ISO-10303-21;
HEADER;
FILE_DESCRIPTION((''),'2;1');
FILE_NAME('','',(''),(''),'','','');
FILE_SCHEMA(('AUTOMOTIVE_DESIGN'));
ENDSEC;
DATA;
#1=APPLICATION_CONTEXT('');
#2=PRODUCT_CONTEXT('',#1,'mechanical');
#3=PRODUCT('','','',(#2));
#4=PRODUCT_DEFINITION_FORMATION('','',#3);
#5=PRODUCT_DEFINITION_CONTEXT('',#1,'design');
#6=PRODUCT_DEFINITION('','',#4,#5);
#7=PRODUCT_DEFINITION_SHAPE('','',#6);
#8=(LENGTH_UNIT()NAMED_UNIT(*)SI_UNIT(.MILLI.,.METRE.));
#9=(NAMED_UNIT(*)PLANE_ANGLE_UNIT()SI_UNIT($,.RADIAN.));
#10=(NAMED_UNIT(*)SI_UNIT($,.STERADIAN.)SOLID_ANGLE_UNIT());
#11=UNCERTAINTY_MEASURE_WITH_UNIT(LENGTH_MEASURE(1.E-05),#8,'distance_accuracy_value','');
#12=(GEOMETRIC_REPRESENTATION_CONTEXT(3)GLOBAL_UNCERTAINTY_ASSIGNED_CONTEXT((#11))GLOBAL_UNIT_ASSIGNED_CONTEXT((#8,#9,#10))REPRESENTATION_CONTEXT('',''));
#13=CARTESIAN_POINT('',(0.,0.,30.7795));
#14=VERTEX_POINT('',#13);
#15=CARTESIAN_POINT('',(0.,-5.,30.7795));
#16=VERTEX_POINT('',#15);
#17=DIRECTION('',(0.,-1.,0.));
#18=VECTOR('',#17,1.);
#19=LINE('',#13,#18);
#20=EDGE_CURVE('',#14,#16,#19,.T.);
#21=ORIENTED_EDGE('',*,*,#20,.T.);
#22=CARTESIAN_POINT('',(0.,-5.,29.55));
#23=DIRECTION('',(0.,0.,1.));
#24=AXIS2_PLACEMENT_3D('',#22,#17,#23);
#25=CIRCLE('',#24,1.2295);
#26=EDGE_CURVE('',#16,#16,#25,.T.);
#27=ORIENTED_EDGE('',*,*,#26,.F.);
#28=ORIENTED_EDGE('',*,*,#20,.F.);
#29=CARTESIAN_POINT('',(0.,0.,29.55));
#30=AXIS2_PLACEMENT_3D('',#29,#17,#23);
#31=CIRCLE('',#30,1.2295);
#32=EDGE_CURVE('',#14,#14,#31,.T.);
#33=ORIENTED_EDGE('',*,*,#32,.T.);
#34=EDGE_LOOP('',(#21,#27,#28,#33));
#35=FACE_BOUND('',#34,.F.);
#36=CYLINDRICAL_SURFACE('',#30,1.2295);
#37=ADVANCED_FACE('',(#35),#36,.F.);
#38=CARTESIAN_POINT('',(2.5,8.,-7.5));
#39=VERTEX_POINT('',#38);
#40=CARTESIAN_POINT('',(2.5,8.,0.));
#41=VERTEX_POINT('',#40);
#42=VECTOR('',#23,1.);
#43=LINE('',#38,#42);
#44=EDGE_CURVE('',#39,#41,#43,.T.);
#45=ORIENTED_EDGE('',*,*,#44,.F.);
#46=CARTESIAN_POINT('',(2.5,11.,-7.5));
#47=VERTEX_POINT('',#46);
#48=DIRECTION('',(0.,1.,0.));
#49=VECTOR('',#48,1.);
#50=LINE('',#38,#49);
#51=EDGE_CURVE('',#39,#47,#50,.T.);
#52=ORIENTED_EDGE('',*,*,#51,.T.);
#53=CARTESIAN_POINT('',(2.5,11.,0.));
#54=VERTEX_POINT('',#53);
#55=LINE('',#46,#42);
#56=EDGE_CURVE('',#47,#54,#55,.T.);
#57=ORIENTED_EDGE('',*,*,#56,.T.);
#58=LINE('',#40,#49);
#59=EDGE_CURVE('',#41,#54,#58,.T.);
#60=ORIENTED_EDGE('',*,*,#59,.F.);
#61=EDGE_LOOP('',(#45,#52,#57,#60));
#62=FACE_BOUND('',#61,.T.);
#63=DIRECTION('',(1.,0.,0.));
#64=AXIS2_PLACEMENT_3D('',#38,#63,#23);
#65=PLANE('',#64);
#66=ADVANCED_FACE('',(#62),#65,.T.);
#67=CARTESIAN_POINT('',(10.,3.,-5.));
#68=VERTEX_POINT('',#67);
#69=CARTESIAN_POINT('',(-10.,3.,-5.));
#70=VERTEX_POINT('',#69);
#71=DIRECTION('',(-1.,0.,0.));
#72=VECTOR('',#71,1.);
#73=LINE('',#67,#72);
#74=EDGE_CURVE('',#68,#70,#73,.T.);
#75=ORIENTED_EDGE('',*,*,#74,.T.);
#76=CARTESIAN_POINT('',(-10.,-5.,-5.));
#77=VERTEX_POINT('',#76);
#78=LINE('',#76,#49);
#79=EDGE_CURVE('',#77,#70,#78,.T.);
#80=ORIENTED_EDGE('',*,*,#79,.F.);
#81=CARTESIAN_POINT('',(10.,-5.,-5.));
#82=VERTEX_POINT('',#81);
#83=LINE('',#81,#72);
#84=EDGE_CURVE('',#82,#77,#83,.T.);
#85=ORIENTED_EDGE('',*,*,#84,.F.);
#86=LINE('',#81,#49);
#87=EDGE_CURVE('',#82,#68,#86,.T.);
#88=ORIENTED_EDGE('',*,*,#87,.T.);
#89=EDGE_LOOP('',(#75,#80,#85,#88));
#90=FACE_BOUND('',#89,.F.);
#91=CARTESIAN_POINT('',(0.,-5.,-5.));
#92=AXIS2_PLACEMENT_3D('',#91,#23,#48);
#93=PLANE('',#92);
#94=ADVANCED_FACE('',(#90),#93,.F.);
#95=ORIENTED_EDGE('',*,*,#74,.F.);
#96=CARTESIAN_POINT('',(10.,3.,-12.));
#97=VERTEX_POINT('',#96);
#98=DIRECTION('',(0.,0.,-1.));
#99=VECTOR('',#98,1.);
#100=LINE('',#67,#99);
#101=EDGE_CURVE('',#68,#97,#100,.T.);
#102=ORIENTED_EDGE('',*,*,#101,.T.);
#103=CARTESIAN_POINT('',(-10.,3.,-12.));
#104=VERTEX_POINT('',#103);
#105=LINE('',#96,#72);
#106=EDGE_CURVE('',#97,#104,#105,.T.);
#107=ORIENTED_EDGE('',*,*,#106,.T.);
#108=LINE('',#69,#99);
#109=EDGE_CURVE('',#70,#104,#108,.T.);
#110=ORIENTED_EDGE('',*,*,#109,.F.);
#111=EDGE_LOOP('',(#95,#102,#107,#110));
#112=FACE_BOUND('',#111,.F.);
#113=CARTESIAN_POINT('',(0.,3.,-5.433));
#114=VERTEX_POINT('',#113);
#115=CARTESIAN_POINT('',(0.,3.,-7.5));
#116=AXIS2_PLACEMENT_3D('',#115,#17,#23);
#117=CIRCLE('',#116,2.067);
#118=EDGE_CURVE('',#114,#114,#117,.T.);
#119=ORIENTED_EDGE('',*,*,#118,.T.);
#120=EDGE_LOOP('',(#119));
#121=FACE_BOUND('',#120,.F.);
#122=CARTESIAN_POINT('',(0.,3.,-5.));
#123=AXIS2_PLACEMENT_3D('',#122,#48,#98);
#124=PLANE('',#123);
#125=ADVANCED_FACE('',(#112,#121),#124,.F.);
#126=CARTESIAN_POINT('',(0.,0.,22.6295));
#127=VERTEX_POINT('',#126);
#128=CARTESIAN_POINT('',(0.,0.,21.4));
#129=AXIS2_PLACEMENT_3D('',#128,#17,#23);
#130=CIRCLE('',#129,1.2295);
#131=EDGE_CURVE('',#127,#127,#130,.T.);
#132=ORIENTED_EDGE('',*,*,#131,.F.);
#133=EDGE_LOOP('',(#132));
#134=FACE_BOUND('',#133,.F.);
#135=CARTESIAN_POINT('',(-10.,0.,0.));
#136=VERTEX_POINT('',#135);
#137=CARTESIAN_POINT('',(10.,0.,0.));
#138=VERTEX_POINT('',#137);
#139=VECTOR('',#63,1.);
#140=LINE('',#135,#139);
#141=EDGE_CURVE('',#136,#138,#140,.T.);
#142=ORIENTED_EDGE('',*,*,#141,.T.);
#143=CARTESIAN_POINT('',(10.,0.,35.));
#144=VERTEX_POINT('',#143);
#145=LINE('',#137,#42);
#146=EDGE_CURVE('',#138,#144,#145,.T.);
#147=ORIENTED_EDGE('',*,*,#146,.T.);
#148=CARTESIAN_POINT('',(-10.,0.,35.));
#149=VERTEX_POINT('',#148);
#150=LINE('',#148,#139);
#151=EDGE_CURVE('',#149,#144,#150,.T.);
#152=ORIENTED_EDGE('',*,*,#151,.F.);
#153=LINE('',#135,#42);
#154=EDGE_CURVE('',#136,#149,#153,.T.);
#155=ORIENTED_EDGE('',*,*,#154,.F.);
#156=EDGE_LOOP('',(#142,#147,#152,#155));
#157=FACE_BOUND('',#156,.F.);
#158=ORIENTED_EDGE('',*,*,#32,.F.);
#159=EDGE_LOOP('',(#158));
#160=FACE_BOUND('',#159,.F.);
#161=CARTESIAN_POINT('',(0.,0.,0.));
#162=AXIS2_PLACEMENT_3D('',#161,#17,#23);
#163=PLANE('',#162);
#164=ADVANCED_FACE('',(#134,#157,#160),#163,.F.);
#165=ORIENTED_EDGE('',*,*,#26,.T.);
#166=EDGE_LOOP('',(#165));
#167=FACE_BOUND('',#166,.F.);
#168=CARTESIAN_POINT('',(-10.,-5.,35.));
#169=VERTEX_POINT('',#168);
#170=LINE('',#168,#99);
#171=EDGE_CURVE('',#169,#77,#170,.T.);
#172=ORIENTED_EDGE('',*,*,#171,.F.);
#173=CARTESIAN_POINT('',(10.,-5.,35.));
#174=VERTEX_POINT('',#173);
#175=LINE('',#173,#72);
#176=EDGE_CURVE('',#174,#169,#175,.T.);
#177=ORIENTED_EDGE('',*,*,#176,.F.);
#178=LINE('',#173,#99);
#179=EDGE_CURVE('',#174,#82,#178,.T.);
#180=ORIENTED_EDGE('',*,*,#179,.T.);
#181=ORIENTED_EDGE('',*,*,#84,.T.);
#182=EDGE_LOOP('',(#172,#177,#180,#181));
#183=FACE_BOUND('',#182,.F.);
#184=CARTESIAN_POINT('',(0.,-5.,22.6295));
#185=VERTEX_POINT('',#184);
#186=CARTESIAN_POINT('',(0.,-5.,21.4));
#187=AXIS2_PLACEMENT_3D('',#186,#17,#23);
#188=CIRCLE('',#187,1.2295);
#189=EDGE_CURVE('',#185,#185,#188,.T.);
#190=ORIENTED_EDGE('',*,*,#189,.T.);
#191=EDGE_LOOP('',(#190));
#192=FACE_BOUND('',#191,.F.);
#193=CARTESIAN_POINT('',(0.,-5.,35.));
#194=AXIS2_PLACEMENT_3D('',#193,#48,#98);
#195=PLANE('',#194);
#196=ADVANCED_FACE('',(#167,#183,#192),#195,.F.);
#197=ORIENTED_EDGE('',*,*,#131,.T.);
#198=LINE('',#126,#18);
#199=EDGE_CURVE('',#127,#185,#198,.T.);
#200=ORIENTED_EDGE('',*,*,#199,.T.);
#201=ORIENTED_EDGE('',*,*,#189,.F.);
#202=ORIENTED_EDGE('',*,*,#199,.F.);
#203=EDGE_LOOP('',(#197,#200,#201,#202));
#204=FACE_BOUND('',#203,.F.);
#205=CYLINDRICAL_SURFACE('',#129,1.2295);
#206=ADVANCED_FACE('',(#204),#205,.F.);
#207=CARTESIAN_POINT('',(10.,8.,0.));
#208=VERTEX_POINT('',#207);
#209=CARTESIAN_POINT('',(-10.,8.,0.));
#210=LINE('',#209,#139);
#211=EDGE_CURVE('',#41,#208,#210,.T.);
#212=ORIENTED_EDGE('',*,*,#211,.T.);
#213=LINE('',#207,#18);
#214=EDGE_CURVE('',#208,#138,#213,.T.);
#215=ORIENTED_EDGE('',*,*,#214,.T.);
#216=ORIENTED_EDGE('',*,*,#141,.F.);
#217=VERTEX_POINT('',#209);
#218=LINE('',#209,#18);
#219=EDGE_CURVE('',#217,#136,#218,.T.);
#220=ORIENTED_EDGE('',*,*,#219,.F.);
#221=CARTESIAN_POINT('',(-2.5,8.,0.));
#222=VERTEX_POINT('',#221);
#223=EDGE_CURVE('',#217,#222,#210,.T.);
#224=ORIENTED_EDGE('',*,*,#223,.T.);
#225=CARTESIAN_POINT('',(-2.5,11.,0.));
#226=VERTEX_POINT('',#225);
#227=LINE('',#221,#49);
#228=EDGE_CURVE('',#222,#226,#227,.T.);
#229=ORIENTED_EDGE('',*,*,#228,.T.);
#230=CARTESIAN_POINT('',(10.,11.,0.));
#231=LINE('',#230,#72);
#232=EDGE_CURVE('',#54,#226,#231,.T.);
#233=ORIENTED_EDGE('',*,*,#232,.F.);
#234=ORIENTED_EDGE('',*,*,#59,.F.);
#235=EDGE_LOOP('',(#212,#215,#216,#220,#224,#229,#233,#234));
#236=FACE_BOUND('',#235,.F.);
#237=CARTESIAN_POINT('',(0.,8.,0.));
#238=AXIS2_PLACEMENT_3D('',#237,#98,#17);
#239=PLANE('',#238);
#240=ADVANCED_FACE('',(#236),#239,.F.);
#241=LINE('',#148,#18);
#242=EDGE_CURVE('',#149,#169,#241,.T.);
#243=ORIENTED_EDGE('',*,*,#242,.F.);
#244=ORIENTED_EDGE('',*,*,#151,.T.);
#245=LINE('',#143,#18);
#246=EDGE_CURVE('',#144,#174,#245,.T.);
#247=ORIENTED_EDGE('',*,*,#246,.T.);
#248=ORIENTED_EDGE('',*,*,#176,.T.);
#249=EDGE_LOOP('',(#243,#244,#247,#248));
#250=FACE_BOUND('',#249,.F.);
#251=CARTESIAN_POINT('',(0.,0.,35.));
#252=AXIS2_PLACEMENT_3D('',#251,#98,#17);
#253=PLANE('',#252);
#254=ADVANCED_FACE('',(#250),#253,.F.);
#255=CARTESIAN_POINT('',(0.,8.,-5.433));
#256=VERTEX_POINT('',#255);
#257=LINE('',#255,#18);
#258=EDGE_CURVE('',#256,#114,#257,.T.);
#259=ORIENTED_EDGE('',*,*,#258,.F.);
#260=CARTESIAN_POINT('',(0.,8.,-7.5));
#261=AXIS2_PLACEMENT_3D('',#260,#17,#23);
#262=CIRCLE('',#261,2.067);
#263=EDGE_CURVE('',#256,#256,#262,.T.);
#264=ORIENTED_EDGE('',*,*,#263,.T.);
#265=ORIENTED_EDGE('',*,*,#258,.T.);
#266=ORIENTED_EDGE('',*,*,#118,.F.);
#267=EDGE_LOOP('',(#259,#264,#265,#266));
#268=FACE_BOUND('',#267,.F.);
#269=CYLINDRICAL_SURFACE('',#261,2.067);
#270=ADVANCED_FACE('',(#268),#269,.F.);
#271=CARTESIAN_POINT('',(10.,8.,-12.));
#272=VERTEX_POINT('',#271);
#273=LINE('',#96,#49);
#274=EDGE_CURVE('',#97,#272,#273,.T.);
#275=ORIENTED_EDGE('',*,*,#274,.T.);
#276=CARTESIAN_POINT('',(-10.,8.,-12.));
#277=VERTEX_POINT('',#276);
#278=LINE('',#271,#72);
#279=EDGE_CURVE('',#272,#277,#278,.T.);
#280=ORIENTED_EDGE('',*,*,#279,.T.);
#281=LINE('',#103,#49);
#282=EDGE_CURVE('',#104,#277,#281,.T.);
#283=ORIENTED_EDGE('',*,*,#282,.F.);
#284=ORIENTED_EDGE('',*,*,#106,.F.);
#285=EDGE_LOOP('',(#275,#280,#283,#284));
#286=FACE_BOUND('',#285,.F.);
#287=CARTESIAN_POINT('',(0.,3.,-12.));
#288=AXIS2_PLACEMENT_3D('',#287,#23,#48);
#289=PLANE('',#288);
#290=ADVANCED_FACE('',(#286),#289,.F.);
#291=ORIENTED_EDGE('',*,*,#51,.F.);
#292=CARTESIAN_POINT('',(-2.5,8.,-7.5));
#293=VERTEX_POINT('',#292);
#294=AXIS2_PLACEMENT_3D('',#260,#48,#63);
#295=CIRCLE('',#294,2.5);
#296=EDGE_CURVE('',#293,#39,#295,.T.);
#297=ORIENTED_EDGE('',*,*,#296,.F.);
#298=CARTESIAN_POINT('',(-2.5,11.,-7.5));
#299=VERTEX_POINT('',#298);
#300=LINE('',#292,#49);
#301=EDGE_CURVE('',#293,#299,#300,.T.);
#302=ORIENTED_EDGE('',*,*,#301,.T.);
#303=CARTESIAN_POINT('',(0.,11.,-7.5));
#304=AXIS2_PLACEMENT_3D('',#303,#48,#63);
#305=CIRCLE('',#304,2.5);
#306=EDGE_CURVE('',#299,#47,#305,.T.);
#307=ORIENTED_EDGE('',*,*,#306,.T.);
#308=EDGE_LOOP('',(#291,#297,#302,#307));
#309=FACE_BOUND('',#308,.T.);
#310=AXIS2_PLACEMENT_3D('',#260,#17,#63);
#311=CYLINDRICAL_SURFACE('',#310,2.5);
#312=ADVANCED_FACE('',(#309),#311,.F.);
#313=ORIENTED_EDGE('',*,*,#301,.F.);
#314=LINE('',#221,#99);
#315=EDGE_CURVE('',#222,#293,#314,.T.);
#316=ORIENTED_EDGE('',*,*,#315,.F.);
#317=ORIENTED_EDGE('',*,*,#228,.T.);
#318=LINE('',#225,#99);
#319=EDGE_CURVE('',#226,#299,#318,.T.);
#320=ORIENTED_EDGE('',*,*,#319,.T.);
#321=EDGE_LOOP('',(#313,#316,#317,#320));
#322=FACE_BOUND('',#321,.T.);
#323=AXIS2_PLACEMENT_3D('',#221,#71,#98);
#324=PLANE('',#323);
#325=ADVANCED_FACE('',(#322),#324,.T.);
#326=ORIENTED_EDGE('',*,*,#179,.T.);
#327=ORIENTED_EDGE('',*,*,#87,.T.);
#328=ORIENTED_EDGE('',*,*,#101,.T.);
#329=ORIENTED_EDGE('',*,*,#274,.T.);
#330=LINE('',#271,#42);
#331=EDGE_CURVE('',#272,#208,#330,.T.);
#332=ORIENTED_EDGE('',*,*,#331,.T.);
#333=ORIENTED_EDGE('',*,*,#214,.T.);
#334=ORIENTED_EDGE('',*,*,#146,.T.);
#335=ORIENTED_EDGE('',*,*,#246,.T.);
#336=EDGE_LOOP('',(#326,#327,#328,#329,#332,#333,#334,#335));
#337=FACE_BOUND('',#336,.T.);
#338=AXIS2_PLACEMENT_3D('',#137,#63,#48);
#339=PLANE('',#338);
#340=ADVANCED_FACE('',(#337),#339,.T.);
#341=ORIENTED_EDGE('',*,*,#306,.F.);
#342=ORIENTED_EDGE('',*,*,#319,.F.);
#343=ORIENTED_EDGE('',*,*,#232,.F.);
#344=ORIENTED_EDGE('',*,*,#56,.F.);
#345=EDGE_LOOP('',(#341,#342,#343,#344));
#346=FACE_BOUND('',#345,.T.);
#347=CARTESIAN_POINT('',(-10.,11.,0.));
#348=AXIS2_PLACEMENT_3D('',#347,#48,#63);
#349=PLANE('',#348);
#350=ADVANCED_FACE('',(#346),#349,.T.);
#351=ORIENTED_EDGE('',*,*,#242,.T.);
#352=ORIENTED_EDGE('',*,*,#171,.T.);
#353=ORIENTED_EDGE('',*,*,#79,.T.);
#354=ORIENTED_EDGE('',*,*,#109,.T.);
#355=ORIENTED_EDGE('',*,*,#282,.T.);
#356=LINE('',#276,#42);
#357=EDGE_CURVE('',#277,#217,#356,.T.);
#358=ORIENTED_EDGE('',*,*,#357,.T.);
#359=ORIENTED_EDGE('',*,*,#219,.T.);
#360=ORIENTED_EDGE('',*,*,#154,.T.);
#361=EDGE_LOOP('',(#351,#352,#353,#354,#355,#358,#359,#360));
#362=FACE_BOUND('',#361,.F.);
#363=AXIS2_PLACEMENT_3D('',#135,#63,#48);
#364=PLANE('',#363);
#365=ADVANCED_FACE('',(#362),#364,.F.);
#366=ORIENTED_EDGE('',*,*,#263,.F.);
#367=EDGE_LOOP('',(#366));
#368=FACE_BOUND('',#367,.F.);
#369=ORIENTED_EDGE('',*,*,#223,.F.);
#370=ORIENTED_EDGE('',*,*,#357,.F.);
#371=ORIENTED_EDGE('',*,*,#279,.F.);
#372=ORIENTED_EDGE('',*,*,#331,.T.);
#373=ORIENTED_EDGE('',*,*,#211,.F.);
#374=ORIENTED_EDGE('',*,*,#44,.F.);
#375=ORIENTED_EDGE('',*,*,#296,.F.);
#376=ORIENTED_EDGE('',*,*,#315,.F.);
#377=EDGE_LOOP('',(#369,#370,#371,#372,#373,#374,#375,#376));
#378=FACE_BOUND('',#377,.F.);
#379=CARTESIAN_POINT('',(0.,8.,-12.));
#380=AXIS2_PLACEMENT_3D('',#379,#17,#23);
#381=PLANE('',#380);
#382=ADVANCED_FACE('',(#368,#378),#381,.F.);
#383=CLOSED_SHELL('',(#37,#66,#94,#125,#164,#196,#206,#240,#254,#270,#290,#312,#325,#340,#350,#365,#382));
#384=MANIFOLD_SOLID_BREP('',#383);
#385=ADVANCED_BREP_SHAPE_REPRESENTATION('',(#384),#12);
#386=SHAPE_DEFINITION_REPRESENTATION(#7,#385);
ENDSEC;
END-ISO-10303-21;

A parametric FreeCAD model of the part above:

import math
import FreeCAD as App
import Part
import Sketcher


def add_polygon(sketch, points):
    """Adds a closed chain of lines whose ends are joined by coincident constraints."""
    first, n = sketch.GeometryCount, len(points)
    for a, b in zip(points, points[1:] + points[:1]):
        sketch.addGeometry(Part.LineSegment(App.Vector(*a, 0), App.Vector(*b, 0)), False)
    for i in range(n):
        sketch.addConstraint(Sketcher.Constraint("Coincident", first + i, 2, first + (i + 1) % n, 1))

doc = App.newDocument("Part")
body = doc.addObject("PartDesign::Body", "Body")

sketch1 = body.newObject("Sketcher::SketchObject", "Sketch")
sketch1.AttachmentSupport = (doc.getObject("YZ_Plane"), [""])
sketch1.MapMode = "FlatFace"
add_polygon(sketch1, [(8, -12), (8, 0), (0, 0), (0, 35), (-5, 35), (-5, -5), (3, -5), (3, -12)])
sketch1.addConstraint([
    Sketcher.Constraint("Vertical", 0),
    Sketcher.Constraint("Horizontal", 1),
    Sketcher.Constraint("Vertical", 2),
    Sketcher.Constraint("Horizontal", 3),
    Sketcher.Constraint("Vertical", 4),
    Sketcher.Constraint("Horizontal", 5),
    Sketcher.Constraint("Vertical", 6),
    Sketcher.Constraint("Horizontal", 7),
    Sketcher.Constraint("Coincident", 1, 2, -1, 1),
    Sketcher.Constraint("Equal", 1, 5),
    Sketcher.Constraint("DistanceX", 1, 2, 1, 1, 8.0),
    Sketcher.Constraint("DistanceX", 3, 2, 3, 1, 5.0),
    Sketcher.Constraint("DistanceY", 0, 1, 0, 2, 12.0),
    Sketcher.Constraint("DistanceY", 2, 1, 2, 2, 35.0),
    Sketcher.Constraint("DistanceY", 4, 2, -1, 1, 5.0),
])
pad1 = body.newObject("PartDesign::Pad", "Pad")
pad1.Profile = sketch1
pad1.Length = 20
pad1.Midplane = True

sketch2 = body.newObject("Sketcher::SketchObject", "Sketch001")
sketch2.AttachmentSupport = (doc.getObject("XZ_Plane"), [""])
sketch2.MapMode = "FlatFace"
sketch2.AttachmentOffset = App.Placement(App.Vector(0, 0, -8), App.Rotation())
sketch2.addGeometry([
    Part.LineSegment(App.Vector(-2.5, 0, 0), App.Vector(2.5, 0, 0)),
    Part.LineSegment(App.Vector(2.5, 0, 0), App.Vector(2.5, -7.5, 0)),
    Part.ArcOfCircle(Part.Circle(App.Vector(0, -7.5, 0), App.Vector(0, 0, 1), 2.5), math.radians(0), math.radians(180)),
    Part.LineSegment(App.Vector(-2.5, -7.5, 0), App.Vector(-2.5, 0, 0)),
], False)
sketch2.addConstraint([
    Sketcher.Constraint("Coincident", 0, 2, 1, 1),
    Sketcher.Constraint("Tangent", 1, 2, 2, 1),
    Sketcher.Constraint("Tangent", 2, 2, 3, 1),
    Sketcher.Constraint("Coincident", 3, 2, 0, 1),
    Sketcher.Constraint("Horizontal", 0),
    Sketcher.Constraint("Vertical", 1),
    Sketcher.Constraint("Vertical", 3),
    Sketcher.Constraint("Symmetric", 0, 2, 3, 2, -1, 1),
    Sketcher.Constraint("Radius", 2, 2.5),
    Sketcher.Constraint("DistanceY", 1, 2, 1, 1, 7.5),
])
pad2 = body.newObject("PartDesign::Pad", "Pad001")
pad2.Profile = sketch2
pad2.Length = 3
pad2.Reversed = True

sketch3 = body.newObject("Sketcher::SketchObject", "Sketch002")
sketch3.AttachmentSupport = (doc.getObject("XZ_Plane"), [""])
sketch3.MapMode = "FlatFace"
sketch3.AttachmentOffset = App.Placement(App.Vector(0, 0, -8), App.Rotation())
sketch3.addGeometry(Part.Circle(App.Vector(0, -7.5, 0), App.Vector(0, 0, 1), 2.067), False)
sketch3.addConstraint([
    Sketcher.Constraint("PointOnObject", 0, 3, -2),
    Sketcher.Constraint("Diameter", 0, 4.134),
    Sketcher.Constraint("DistanceY", 0, 3, -1, 1, 7.5),
])
doc.recompute()
hole = body.newObject("PartDesign::Hole", "Hole")
hole.Profile = sketch3
hole.ThreadType = "None"
hole.Diameter = 4.134
hole.DepthType = "ThroughAll"
hole.Reversed = True

sketch4 = body.newObject("Sketcher::SketchObject", "Sketch003")
sketch4.AttachmentSupport = (doc.getObject("XZ_Plane"), [""])
sketch4.MapMode = "FlatFace"
sketch4.addGeometry([
    Part.Circle(App.Vector(0, 29.55, 0), App.Vector(0, 0, 1), 1.2295),
    Part.Circle(App.Vector(0, 21.4, 0), App.Vector(0, 0, 1), 1.2295),
], False)
sketch4.addConstraint([
    Sketcher.Constraint("Equal", 0, 1),
    Sketcher.Constraint("PointOnObject", 0, 3, -2),
    Sketcher.Constraint("PointOnObject", 1, 3, -2),
    Sketcher.Constraint("Diameter", 0, 2.459),
    Sketcher.Constraint("DistanceY", -1, 1, 1, 3, 21.4),
    Sketcher.Constraint("DistanceY", -1, 1, 0, 3, 29.55),
])
doc.recompute()
hole2 = body.newObject("PartDesign::Hole", "Hole001")
hole2.Profile = sketch4
hole2.ThreadType = "None"
hole2.Diameter = 2.459
hole2.DepthType = "ThroughAll"
hole2.Reversed = True

doc.recompute()
